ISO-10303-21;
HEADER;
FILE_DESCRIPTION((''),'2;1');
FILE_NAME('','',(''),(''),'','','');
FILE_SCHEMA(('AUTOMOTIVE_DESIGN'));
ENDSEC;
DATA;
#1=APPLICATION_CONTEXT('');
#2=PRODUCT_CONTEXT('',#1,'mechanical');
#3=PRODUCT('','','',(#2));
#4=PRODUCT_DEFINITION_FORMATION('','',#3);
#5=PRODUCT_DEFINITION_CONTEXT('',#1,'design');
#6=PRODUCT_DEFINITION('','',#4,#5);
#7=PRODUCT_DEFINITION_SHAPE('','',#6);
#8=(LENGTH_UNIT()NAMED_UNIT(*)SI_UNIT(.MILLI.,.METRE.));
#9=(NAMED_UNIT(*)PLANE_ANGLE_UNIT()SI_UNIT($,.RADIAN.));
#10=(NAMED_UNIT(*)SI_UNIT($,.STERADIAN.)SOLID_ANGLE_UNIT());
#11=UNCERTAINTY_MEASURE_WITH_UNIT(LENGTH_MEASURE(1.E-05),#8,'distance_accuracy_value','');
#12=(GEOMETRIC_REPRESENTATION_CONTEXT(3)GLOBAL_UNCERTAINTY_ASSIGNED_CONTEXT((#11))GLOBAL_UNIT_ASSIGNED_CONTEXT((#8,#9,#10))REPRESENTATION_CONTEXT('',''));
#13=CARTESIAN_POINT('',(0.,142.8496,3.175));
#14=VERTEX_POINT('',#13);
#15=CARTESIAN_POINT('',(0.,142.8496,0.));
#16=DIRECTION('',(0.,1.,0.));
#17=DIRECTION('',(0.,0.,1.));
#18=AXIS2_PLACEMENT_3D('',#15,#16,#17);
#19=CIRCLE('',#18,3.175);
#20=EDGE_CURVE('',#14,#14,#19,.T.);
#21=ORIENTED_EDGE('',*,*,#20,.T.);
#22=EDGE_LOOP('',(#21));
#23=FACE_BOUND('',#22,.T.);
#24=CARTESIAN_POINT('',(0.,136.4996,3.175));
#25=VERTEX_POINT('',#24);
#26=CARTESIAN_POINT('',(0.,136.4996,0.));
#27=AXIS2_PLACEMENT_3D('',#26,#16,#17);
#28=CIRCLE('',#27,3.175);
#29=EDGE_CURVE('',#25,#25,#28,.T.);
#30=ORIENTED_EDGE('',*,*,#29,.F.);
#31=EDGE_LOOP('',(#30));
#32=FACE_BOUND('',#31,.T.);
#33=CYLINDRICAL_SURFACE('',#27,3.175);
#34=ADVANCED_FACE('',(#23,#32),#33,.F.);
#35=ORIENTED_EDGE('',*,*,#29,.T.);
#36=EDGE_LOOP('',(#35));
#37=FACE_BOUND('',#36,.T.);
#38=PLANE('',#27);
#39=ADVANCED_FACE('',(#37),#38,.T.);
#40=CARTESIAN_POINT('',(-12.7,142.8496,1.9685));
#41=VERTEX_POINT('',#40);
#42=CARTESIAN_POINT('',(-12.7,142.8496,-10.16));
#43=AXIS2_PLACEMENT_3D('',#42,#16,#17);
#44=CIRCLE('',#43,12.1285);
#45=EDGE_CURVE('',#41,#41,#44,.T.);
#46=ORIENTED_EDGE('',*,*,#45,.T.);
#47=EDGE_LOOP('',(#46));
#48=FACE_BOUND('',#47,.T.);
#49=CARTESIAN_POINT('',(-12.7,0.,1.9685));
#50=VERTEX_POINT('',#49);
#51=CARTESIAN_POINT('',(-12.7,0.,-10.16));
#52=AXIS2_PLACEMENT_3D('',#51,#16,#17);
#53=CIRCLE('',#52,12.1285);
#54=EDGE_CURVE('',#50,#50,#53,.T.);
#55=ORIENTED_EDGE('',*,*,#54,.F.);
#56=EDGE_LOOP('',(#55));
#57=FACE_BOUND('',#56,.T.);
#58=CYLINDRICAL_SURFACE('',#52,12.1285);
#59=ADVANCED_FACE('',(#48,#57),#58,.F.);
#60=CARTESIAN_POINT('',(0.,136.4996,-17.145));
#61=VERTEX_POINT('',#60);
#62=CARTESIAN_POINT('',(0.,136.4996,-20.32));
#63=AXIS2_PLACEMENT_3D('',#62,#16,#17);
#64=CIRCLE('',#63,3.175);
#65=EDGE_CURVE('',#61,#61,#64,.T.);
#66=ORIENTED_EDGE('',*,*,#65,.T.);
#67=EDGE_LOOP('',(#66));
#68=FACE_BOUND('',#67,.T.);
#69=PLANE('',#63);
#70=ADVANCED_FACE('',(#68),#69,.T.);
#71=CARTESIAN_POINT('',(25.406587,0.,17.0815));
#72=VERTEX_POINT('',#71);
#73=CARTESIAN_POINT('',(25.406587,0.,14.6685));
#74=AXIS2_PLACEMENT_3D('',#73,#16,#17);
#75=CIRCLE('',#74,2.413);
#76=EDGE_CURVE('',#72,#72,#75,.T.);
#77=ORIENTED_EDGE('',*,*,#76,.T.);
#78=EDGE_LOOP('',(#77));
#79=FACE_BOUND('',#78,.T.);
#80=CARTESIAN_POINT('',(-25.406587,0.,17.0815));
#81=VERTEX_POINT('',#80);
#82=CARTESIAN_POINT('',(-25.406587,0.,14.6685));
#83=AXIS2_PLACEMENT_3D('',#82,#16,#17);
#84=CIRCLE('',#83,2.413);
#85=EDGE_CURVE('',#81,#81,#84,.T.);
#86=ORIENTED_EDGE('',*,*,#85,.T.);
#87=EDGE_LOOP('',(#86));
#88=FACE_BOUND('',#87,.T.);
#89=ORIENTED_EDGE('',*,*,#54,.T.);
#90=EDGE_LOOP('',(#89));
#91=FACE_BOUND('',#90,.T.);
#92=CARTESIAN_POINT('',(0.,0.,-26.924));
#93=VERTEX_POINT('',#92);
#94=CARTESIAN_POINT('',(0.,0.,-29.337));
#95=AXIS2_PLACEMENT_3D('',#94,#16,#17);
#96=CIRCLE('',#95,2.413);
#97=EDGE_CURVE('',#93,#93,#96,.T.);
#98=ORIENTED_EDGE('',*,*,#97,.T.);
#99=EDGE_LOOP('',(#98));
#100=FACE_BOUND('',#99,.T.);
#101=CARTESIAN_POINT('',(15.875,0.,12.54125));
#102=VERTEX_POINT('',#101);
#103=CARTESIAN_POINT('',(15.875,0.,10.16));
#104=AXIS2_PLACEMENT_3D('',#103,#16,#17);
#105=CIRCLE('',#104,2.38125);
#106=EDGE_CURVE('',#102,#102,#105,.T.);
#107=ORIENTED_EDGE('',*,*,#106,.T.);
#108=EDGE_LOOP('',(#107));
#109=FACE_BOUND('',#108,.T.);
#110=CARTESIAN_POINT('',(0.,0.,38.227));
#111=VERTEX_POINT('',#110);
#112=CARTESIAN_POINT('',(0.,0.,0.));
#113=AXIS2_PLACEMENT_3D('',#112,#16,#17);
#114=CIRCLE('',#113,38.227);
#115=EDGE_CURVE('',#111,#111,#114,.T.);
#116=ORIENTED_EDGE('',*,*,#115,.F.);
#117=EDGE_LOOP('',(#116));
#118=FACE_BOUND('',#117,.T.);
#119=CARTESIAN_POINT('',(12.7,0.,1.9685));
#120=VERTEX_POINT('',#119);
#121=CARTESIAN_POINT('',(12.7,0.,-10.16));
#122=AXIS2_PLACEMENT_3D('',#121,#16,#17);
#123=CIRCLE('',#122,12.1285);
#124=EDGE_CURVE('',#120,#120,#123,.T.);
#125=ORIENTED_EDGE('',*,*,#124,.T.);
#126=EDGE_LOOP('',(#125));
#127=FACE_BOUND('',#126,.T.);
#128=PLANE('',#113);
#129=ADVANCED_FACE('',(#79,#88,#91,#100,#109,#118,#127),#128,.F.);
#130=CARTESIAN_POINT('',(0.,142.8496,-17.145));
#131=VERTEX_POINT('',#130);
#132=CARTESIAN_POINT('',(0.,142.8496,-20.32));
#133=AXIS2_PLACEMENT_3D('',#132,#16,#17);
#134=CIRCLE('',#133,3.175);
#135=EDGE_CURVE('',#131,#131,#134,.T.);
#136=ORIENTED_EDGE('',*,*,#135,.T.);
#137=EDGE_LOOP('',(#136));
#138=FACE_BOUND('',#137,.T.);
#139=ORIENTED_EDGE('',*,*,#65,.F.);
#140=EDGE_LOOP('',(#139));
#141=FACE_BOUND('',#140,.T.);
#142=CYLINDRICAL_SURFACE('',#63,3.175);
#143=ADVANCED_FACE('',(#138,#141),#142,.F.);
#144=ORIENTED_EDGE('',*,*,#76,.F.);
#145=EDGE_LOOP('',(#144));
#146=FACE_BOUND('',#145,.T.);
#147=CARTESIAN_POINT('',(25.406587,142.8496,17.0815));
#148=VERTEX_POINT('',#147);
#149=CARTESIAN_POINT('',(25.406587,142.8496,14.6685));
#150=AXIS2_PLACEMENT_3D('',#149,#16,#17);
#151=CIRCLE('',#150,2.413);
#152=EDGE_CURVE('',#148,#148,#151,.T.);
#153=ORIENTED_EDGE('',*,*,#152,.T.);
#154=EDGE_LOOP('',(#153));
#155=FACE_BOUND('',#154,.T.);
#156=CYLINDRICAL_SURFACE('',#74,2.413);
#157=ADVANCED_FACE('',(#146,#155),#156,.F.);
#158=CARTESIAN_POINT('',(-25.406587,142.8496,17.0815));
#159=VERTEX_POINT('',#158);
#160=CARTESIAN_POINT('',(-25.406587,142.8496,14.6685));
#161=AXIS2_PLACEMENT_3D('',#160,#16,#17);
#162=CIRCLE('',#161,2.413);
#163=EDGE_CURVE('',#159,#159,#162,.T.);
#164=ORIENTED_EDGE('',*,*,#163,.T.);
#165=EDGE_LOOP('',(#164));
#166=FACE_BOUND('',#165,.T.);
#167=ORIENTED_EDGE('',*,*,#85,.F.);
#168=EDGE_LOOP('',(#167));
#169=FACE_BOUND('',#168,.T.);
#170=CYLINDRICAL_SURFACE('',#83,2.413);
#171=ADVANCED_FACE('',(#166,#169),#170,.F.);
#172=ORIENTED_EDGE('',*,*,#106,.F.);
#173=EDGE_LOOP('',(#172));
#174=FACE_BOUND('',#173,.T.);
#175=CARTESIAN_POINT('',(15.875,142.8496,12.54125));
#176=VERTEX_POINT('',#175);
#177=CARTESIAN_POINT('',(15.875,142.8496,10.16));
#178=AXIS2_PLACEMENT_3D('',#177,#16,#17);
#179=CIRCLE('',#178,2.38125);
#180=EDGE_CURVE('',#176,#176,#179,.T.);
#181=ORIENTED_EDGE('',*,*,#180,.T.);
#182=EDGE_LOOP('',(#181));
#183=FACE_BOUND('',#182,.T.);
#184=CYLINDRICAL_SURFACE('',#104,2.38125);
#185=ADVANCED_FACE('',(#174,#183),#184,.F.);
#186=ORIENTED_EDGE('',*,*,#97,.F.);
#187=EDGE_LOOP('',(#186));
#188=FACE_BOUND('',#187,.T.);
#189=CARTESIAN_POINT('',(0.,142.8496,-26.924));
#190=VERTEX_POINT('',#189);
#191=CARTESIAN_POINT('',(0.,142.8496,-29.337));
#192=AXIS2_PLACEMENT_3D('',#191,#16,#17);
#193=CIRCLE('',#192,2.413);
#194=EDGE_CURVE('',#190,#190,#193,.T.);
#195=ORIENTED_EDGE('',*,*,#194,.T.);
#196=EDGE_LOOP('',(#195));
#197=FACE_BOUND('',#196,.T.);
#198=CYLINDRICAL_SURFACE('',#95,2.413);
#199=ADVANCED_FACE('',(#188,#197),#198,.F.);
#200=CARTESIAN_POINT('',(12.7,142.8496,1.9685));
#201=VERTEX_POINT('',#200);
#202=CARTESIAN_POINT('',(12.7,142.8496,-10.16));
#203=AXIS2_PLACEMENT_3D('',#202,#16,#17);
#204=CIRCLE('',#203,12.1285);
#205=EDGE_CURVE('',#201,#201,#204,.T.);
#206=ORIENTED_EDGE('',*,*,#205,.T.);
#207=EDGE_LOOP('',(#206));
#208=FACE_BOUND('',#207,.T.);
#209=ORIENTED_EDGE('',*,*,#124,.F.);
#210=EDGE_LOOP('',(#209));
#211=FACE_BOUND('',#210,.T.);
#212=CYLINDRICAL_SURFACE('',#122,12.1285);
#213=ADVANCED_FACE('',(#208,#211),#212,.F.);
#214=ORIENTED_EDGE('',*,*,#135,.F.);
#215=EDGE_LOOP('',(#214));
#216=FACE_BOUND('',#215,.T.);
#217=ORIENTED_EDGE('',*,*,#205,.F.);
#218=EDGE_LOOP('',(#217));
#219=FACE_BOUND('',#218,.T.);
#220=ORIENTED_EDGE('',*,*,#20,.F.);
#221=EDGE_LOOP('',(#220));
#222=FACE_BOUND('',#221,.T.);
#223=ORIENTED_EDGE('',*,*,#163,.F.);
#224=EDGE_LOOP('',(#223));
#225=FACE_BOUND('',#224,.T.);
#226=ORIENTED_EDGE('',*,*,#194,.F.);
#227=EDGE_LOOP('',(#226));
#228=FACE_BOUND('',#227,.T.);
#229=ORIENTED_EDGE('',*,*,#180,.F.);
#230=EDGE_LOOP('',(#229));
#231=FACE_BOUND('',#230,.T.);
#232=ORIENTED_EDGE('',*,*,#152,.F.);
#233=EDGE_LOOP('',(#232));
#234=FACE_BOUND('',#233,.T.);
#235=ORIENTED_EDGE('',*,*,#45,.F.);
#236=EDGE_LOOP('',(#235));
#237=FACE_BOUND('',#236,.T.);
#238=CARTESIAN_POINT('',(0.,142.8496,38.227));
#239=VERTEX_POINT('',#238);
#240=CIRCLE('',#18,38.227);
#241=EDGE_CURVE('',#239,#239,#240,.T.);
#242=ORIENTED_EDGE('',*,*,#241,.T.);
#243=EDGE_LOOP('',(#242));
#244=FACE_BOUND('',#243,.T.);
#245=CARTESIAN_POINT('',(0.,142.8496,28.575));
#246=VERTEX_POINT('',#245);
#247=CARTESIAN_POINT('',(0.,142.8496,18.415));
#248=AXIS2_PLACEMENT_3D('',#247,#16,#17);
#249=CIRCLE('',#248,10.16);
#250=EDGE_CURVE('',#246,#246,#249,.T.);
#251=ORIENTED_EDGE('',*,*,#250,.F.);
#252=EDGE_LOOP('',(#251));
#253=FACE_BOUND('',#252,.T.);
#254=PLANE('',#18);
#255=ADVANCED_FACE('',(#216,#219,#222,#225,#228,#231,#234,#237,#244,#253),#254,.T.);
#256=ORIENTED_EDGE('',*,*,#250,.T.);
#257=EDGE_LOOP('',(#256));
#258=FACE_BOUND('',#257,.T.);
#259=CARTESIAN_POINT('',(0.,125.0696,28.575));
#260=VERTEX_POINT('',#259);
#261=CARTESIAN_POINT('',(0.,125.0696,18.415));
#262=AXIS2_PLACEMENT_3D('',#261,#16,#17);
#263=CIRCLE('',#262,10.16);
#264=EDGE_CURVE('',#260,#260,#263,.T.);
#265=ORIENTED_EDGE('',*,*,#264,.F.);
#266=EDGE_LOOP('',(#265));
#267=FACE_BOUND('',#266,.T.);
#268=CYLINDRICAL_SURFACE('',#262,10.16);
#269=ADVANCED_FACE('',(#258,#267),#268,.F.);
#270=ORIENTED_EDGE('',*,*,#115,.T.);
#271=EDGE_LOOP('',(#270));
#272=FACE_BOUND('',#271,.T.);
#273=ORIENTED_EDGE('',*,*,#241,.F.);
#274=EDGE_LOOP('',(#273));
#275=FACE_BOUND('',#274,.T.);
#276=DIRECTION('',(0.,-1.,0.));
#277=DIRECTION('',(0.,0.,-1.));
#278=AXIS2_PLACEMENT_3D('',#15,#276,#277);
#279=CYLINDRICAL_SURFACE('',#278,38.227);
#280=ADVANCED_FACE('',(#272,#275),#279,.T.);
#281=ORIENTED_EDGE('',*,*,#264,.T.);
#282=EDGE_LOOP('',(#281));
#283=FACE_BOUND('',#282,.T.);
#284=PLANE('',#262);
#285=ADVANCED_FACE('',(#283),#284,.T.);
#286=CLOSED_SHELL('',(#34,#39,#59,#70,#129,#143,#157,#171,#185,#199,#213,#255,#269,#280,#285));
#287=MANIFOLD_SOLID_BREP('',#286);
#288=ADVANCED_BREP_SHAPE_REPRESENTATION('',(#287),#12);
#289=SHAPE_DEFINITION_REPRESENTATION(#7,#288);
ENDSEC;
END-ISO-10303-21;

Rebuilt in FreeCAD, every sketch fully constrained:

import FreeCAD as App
import Part
import Sketcher
from FreeCAD import Vector
Q = App.Units.Quantity

doc = App.newDocument("Part")
params = doc.addObject("Spreadsheet::Sheet", "Params")
for row, (alias, value) in enumerate([
    ("sketch1_diameter", "3.01 in"),
    ("pad1_length", "5.624 in"),
    ("sketch2_diameter", "0.19 in"),
    ("sketch3_diameter", "0.955 in"),
    ("sketch4_diameter", "0.25 in"),
    ("pocket3_length", "0.25 in"),
    ("sketch5_diameter", "0.8 in"),
    ("pocket4_length", "0.7 in"),
    ("sketch6_diameter", "0.1875 in"),
], start=1):
    params.set(f"A{row}", alias)
    params.set(f"B{row}", "=" + value)
    params.setAlias(f"B{row}", alias)

body = doc.addObject("PartDesign::Body", "Body")

# Sketch on XZ plane
sketch1 = doc.addObject("Sketcher::SketchObject", "Sketch")
body.addObject(sketch1)
sketch1.AttachmentSupport = (doc.XZ_Plane, [""])
sketch1.MapMode = "FlatFace"
sketch1.addGeometry(Part.Circle(Vector(0, 0, 0), Vector(0, 0, 1), 38), False)
sketch1.addConstraint([
    Sketcher.Constraint("Coincident", 0, 3, -1, 1),
    Sketcher.Constraint("Diameter", 0, Q("3.01 in")),
])
sketch1.setExpression("Constraints[1]", "Params.sketch1_diameter")
pad1 = doc.addObject("PartDesign::Pad", "Pad")
body.addObject(pad1)
pad1.Profile = sketch1
pad1.setExpression("Length", "Params.pad1_length")
pad1.Reversed = True

# Sketch on XZ plane
sketch2 = doc.addObject("Sketcher::SketchObject", "Sketch001")
body.addObject(sketch2)
sketch2.AttachmentSupport = (doc.XZ_Plane, [""])
sketch2.MapMode = "FlatFace"
sketch2.AttachmentOffset = App.Placement(Vector(0, 0, -5.624 * 25.4), App.Rotation())
sketch2.addGeometry([
    Part.Circle(Vector(0, -29.3, 0), Vector(0, 0, 1), 2.4),
    Part.Circle(Vector(25.4, 14.7, 0), Vector(0, 0, 1), 2.4),
    Part.Circle(Vector(-25.4, 14.7, 0), Vector(0, 0, 1), 2.4),
], False)
sketch2.addConstraint([
    Sketcher.Constraint("Equal", 0, 1),
    Sketcher.Constraint("Equal", 1, 2),
    Sketcher.Constraint("Symmetric", 1, 3, 2, 3, -2),
    Sketcher.Constraint("PointOnObject", 0, 3, -2),
    Sketcher.Constraint("Diameter", 0, Q("0.19 in")),
    Sketcher.Constraint("DistanceY", 0, 3, -1, 1, Q("1.155 in")),
    Sketcher.Constraint("DistanceY", -1, 1, 1, 3, Q("0.5775 in")),
    Sketcher.Constraint("DistanceX", -1, 1, 1, 3, 25.406587),
])
sketch2.setExpression("Constraints[4]", "Params.sketch2_diameter")
pocket1 = doc.addObject("PartDesign::Pocket", "Pocket")
body.addObject(pocket1)
pocket1.Profile = sketch2
pocket1.Type = "ThroughAll"
pocket1.Reversed = True

# Sketch on XZ plane
sketch3 = doc.addObject("Sketcher::SketchObject", "Sketch002")
body.addObject(sketch3)
sketch3.AttachmentSupport = (doc.XZ_Plane, [""])
sketch3.MapMode = "FlatFace"
sketch3.AttachmentOffset = App.Placement(Vector(0, 0, -5.624 * 25.4), App.Rotation())
sketch3.addGeometry([
    Part.Circle(Vector(-13, -10, 0), Vector(0, 0, 1), 12),
    Part.Circle(Vector(13, -10, 0), Vector(0, 0, 1), 12),
], False)
sketch3.addConstraint([
    Sketcher.Constraint("Equal", 0, 1),
    Sketcher.Constraint("Symmetric", 0, 3, 1, 3, -2),
    Sketcher.Constraint("Diameter", 0, Q("0.955 in")),
    Sketcher.Constraint("DistanceX", 0, 3, 1, 3, Q("1 in")),
    Sketcher.Constraint("DistanceY", 0, 3, -1, 1, Q("0.4 in")),
])
sketch3.setExpression("Constraints[2]", "Params.sketch3_diameter")
pocket2 = doc.addObject("PartDesign::Pocket", "Pocket001")
body.addObject(pocket2)
pocket2.Profile = sketch3
pocket2.Type = "ThroughAll"
pocket2.Reversed = True

# Sketch on XZ plane
sketch4 = doc.addObject("Sketcher::SketchObject", "Sketch003")
body.addObject(sketch4)
sketch4.AttachmentSupport = (doc.XZ_Plane, [""])
sketch4.MapMode = "FlatFace"
sketch4.AttachmentOffset = App.Placement(Vector(0, 0, -5.624 * 25.4), App.Rotation())
sketch4.addGeometry([
    Part.Circle(Vector(0, -20.3, 0), Vector(0, 0, 1), 3.2),
    Part.Circle(Vector(0, 0, 0), Vector(0, 0, 1), 3.2),
], False)
sketch4.addConstraint([
    Sketcher.Constraint("Coincident", 1, 3, -1, 1),
    Sketcher.Constraint("Equal", 0, 1),
    Sketcher.Constraint("PointOnObject", 0, 3, -2),
    Sketcher.Constraint("Diameter", 0, Q("0.25 in")),
    Sketcher.Constraint("DistanceY", 0, 3, -1, 1, Q("0.8 in")),
])
sketch4.setExpression("Constraints[3]", "Params.sketch4_diameter")
pocket3 = doc.addObject("PartDesign::Pocket", "Pocket002")
body.addObject(pocket3)
pocket3.Profile = sketch4
pocket3.setExpression("Length", "Params.pocket3_length")
pocket3.Reversed = True

# Sketch on XZ plane
sketch5 = doc.addObject("Sketcher::SketchObject", "Sketch004")
body.addObject(sketch5)
sketch5.AttachmentSupport = (doc.XZ_Plane, [""])
sketch5.MapMode = "FlatFace"
sketch5.AttachmentOffset = App.Placement(Vector(0, 0, -5.624 * 25.4), App.Rotation())
sketch5.addGeometry(Part.Circle(Vector(0, 18, 0), Vector(0, 0, 1), 10), False)
sketch5.addConstraint([
    Sketcher.Constraint("PointOnObject", 0, 3, -2),
    Sketcher.Constraint("Diameter", 0, Q("0.8 in")),
    Sketcher.Constraint("DistanceY", -1, 1, 0, 3, Q("0.725 in")),
])
sketch5.setExpression("Constraints[1]", "Params.sketch5_diameter")
pocket4 = doc.addObject("PartDesign::Pocket", "Pocket003")
body.addObject(pocket4)
pocket4.Profile = sketch5
pocket4.setExpression("Length", "Params.pocket4_length")
pocket4.Reversed = True

# Sketch on XZ plane
sketch6 = doc.addObject("Sketcher::SketchObject", "Sketch005")
body.addObject(sketch6)
sketch6.AttachmentSupport = (doc.XZ_Plane, [""])
sketch6.MapMode = "FlatFace"
sketch6.AttachmentOffset = App.Placement(Vector(0, 0, -5.624 * 25.4), App.Rotation())
sketch6.addGeometry(Part.Circle(Vector(15.9, 10.2, 0), Vector(0, 0, 1), 2.4), False)
sketch6.addConstraint([
    Sketcher.Constraint("Diameter", 0, Q("0.1875 in")),
    Sketcher.Constraint("DistanceY", -1, 1, 0, 3, Q("0.4 in")),
    Sketcher.Constraint("DistanceX", -1, 1, 0, 3, Q("0.625 in")),
])
sketch6.setExpression("Constraints[0]", "Params.sketch6_diameter")
pocket5 = doc.addObject("PartDesign::Pocket", "Pocket004")
body.addObject(pocket5)
pocket5.Profile = sketch6
pocket5.Type = "ThroughAll"
pocket5.Midplane = True

doc.recompute()
